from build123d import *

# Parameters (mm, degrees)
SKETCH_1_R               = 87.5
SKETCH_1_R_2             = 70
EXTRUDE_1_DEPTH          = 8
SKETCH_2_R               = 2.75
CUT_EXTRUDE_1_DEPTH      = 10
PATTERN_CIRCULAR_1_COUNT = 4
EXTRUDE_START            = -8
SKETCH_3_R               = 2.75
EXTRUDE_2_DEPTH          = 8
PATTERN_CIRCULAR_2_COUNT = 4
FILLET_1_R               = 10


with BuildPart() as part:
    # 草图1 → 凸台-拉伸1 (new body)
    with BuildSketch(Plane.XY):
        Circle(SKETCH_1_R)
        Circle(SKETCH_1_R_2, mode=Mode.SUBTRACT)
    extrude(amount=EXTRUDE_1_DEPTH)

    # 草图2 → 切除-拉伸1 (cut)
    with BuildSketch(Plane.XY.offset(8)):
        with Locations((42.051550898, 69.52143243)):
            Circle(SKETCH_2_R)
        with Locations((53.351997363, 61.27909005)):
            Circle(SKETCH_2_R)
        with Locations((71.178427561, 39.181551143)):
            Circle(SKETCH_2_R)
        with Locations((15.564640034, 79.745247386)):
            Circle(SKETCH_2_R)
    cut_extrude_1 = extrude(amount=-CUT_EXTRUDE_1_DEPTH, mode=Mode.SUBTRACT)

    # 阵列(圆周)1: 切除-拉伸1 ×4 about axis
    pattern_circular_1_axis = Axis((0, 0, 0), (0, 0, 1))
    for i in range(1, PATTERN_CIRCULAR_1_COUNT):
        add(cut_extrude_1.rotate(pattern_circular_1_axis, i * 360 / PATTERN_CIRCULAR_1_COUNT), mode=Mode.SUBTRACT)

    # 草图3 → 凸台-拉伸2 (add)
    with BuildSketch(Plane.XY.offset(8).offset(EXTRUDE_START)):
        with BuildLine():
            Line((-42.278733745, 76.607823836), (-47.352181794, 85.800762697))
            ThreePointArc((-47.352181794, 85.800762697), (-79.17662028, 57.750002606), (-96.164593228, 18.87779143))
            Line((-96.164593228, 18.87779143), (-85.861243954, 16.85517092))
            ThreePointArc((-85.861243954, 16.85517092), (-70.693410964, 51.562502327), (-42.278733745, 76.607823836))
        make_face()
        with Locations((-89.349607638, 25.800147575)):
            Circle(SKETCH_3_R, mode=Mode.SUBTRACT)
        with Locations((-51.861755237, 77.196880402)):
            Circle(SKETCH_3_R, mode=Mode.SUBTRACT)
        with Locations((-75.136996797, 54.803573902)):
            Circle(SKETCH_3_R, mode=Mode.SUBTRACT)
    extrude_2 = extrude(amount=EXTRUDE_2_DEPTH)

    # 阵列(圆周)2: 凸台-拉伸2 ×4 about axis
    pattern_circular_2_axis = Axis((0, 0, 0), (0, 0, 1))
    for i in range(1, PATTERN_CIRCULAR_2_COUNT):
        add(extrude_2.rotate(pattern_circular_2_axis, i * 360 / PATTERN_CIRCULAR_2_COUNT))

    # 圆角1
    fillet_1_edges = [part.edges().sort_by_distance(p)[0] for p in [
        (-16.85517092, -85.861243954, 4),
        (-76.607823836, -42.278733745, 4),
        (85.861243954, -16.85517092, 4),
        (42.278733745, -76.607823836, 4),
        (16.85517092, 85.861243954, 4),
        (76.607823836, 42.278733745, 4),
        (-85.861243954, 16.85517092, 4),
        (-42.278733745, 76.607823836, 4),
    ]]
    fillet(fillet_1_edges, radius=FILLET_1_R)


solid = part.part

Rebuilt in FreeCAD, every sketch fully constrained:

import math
import FreeCAD as App
import Part
import Sketcher
from FreeCAD import Vector
Q = App.Units.Quantity


def edges_at(feature, points):
    """Names of the edges that pass closest to the given points."""
    edges = feature.Shape.Edges
    near = lambda p: min(range(len(edges)), key=lambda i: edges[i].distToShape(Part.Vertex(*p))[0])
    return sorted({f"Edge{near(p) + 1}" for p in points})

doc = App.newDocument("Part")
body = doc.addObject("PartDesign::Body", "Body")

# Sketch on XY plane
sketch1 = doc.addObject("Sketcher::SketchObject", "Sketch")
body.addObject(sketch1)
sketch1.AttachmentSupport = (doc.XY_Plane, [""])
sketch1.MapMode = "FlatFace"
sketch1.addGeometry([
    Part.Circle(Vector(0, 0, 0), Vector(0, 0, 1), 88),
    Part.Circle(Vector(0, 0, 0), Vector(0, 0, 1), 70),
], False)
sketch1.addConstraint([
    Sketcher.Constraint("Coincident", 0, 3, -1, 1),
    Sketcher.Constraint("Coincident", 1, 3, -1, 1),
    Sketcher.Constraint("Diameter", 0, Q("175 mm")),
    Sketcher.Constraint("Diameter", 1, Q("140 mm")),
])
pad1 = doc.addObject("PartDesign::Pad", "Pad")
body.addObject(pad1)
pad1.Profile = sketch1
pad1.Length = 8

# Sketch on XY plane
sketch2 = doc.addObject("Sketcher::SketchObject", "Sketch001")
body.addObject(sketch2)
sketch2.AttachmentSupport = (doc.XY_Plane, [""])
sketch2.MapMode = "FlatFace"
sketch2.AttachmentOffset = App.Placement(Vector(0, 0, 8), App.Rotation())
sketch2.addGeometry([
    Part.Circle(Vector(42.1, 69.5, 0), Vector(0, 0, 1), 2.8),
    Part.Circle(Vector(53.4, 61.3, 0), Vector(0, 0, 1), 2.8),
    Part.Circle(Vector(71.2, 39.2, 0), Vector(0, 0, 1), 2.8),
    Part.Circle(Vector(15.6, 79.7, 0), Vector(0, 0, 1), 2.8),
], False)
sketch2.addConstraint([
    Sketcher.Constraint("Equal", 0, 1),
    Sketcher.Constraint("Equal", 1, 2),
    Sketcher.Constraint("Equal", 2, 3),
    Sketcher.Constraint("Diameter", 0, Q("5.5 mm")),
    Sketcher.Constraint("DistanceX", -1, 1, 0, 3, Q("42.051551 mm")),
    Sketcher.Constraint("DistanceY", -1, 1, 1, 3, Q("61.27909 mm")),
    Sketcher.Constraint("DistanceY", -1, 1, 2, 3, Q("39.181551 mm")),
    Sketcher.Constraint("DistanceX", -1, 1, 3, 3, Q("15.56464 mm")),
    Sketcher.Constraint("DistanceX", 1, 3, 2, 3, Q("17.82643 mm")),
    Sketcher.Constraint("DistanceY", 2, 3, 0, 3, Q("30.339881 mm")),
    Sketcher.Constraint("DistanceX", -1, 1, 1, 3, Q("53.351997 mm")),
    Sketcher.Constraint("DistanceY", -1, 1, 3, 3, Q("79.745247 mm")),
])
pocket1 = doc.addObject("PartDesign::Pocket", "Pocket")
body.addObject(pocket1)
pocket1.Profile = sketch2
pocket1.Length = 10
doc.recompute()

polarpattern = doc.addObject("PartDesign::PolarPattern", "PolarPattern")
body.addObject(polarpattern)
polarpattern.Originals = [pocket1]
polarpattern.Axis = (doc.Z_Axis, [""])
polarpattern.Angle = 360
polarpattern.Occurrences = 4
body.Tip = polarpattern

# Sketch on XY plane
sketch3 = doc.addObject("Sketcher::SketchObject", "Sketch002")
body.addObject(sketch3)
sketch3.AttachmentSupport = (doc.XY_Plane, [""])
sketch3.MapMode = "FlatFace"
sketch3.addGeometry([
    Part.LineSegment(Vector(-42.3, 76.6, 0), Vector(-47.4, 85.8, 0)),  # 0
    Part.ArcOfCircle(Part.Circle(Vector(0, 0, 0), Vector(0, 0, 1), 98), math.radians(119), math.radians(169)),  # 1
    Part.LineSegment(Vector(-96.2, 18.9, 0), Vector(-85.9, 16.9, 0)),  # 2
    Part.ArcOfCircle(Part.Circle(Vector(0, 0, 0), Vector(0, 0, 1), 87.5), math.radians(119), math.radians(169)),  # 3
    Part.Circle(Vector(-89.3, 25.8, 0), Vector(0, 0, 1), 2.8),  # 4
    Part.Circle(Vector(-75.1, 54.8, 0), Vector(0, 0, 1), 2.8),  # 5
    Part.Circle(Vector(-51.9, 77.2, 0), Vector(0, 0, 1), 2.8),  # 6
], False)
sketch3.addConstraint([
    Sketcher.Constraint("Coincident", 0, 2, 1, 1),
    Sketcher.Constraint("Coincident", 1, 2, 2, 1),
    Sketcher.Constraint("Coincident", 2, 2, 3, 2),
    Sketcher.Constraint("Coincident", 3, 1, 0, 1),
    Sketcher.Constraint("Coincident", 1, 3, -1, 1),
    Sketcher.Constraint("Coincident", 3, 3, -1, 1),
    Sketcher.Constraint("Equal", 4, 5),
    Sketcher.Constraint("Equal", 5, 6),
    Sketcher.Constraint("Radius", 1, Q("98 mm")),
    Sketcher.Constraint("Diameter", 4, Q("5.5 mm")),
    Sketcher.Constraint("Radius", 3, Q("87.5 mm")),
    Sketcher.Constraint("DistanceY", -1, 1, 6, 3, Q("77.19688 mm")),
    Sketcher.Constraint("DistanceX", 0, 2, -1, 1, Q("47.352182 mm")),
    Sketcher.Constraint("DistanceY", -1, 1, 1, 2, Q("18.877791 mm")),
    Sketcher.Constraint("DistanceY", -1, 1, 2, 2, Q("16.855171 mm")),
    Sketcher.Constraint("DistanceX", 4, 3, 5, 3, Q("14.212611 mm")),
    Sketcher.Constraint("DistanceX", 5, 3, 6, 3, Q("23.275242 mm")),
    Sketcher.Constraint("DistanceY", 5, 3, 0, 2, Q("30.997189 mm")),
    Sketcher.Constraint("DistanceX", 2, 2, 6, 3, Q("33.999489 mm")),
    Sketcher.Constraint("DistanceX", 6, 3, 3, 1, Q("9.583021 mm")),
    Sketcher.Constraint("DistanceY", -1, 1, 4, 3, Q("25.800148 mm")),
])
pad2 = doc.addObject("PartDesign::Pad", "Pad001")
body.addObject(pad2)
pad2.Profile = sketch3
pad2.Length = 8
doc.recompute()

polarpattern2 = doc.addObject("PartDesign::PolarPattern", "PolarPattern001")
body.addObject(polarpattern2)
polarpattern2.Originals = [pad2]
polarpattern2.Axis = (doc.Z_Axis, [""])
polarpattern2.Angle = 360
polarpattern2.Occurrences = 4
body.Tip = polarpattern2
doc.recompute()

fillet = doc.addObject("PartDesign::Fillet", "Fillet")
body.addObject(fillet)
fillet.Base = (polarpattern2, edges_at(polarpattern2, [
    (-16.855, -85.861, 4),
    (-76.608, -42.279, 4),
    (85.861, -16.855, 4),
    (42.279, -76.608, 4),
    (16.855, 85.861, 4),
    (76.608, 42.279, 4),
    (-85.861, 16.855, 4),
    (-42.279, 76.608, 4),
]))
fillet.Radius = 10

doc.recompute()
